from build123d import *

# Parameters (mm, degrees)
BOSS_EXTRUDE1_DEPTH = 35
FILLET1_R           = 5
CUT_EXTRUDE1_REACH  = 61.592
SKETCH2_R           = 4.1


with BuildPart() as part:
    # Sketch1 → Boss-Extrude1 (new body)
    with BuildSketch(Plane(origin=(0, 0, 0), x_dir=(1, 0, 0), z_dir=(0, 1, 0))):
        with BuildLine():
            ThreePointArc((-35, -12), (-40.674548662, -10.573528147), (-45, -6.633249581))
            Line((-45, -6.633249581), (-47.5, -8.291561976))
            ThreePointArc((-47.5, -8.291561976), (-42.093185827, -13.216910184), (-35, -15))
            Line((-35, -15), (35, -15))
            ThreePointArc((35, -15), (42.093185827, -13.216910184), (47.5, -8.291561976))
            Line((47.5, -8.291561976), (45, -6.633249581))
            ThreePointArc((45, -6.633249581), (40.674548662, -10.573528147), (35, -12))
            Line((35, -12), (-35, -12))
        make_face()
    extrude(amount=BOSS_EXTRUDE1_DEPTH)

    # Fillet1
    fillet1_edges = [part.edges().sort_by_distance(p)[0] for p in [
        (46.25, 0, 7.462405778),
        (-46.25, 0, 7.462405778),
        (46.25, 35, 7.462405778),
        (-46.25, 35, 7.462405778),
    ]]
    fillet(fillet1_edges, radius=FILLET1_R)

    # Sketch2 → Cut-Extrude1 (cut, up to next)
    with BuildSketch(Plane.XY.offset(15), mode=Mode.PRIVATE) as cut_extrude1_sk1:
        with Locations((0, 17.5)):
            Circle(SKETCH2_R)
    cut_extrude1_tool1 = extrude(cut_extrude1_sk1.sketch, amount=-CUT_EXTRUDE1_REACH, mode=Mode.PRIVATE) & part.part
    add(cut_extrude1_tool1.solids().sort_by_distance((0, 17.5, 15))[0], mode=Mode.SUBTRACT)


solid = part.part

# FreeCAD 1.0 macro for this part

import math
import FreeCAD as App
import Part
import Sketcher

V = App.Vector
Q = App.Units.Quantity


def edges_at(feature, points):
    """Names of the edges that pass closest to the given points."""
    edges = feature.Shape.Edges
    near = lambda p: min(range(len(edges)), key=lambda i: edges[i].distToShape(Part.Vertex(*p))[0])
    return sorted({f"Edge{near(p) + 1}" for p in points})

doc = App.newDocument("Part")
body = doc.addObject("PartDesign::Body", "Body")

sketch1 = doc.addObject("Sketcher::SketchObject", "Sketch")
body.addObject(sketch1)
sketch1.AttachmentSupport = (doc.XZ_Plane, [""])
sketch1.MapMode = "FlatFace"
sketch1.addGeometry([
    Part.ArcOfCircle(Part.Circle(V(-35, 0, 0), V(0, 0, 1), 12), math.radians(90), math.radians(146)),
    Part.LineSegment(V(-45, 6.6, 0), V(-47.5, 8.3, 0)),
    Part.ArcOfCircle(Part.Circle(V(-35, 0, 0), V(0, 0, 1), 15), math.radians(90), math.radians(146)),
    Part.LineSegment(V(-35, 15, 0), V(35, 15, 0)),
    Part.ArcOfCircle(Part.Circle(V(35, 0, 0), V(0, 0, 1), 15), math.radians(34), math.radians(90)),
    Part.LineSegment(V(47.5, 8.3, 0), V(45, 6.6, 0)),
    Part.ArcOfCircle(Part.Circle(V(35, 0, 0), V(0, 0, 1), 12), math.radians(34), math.radians(90)),
    Part.LineSegment(V(35, 12, 0), V(-35, 12, 0)),
], False)
sketch1.addConstraint([
    Sketcher.Constraint("Coincident", 0, 2, 1, 1),
    Sketcher.Constraint("Coincident", 1, 2, 2, 2),
    Sketcher.Constraint("Tangent", 2, 1, 3, 1),
    Sketcher.Constraint("Tangent", 3, 2, 4, 2),
    Sketcher.Constraint("Coincident", 4, 1, 5, 1),
    Sketcher.Constraint("Coincident", 5, 2, 6, 1),
    Sketcher.Constraint("Tangent", 6, 2, 7, 1),
    Sketcher.Constraint("Tangent", 7, 2, 0, 1),
    Sketcher.Constraint("Horizontal", 3),
    Sketcher.Constraint("Horizontal", 7),
    Sketcher.Constraint("Coincident", 2, 3, 0, 3),
    Sketcher.Constraint("Coincident", 6, 3, 4, 3),
    Sketcher.Constraint("Equal", 2, 4),
    Sketcher.Constraint("Symmetric", 0, 3, 4, 3, -1, 1),
    Sketcher.Constraint("Horizontal", 1, 2, 4, 1),
    Sketcher.Constraint("Horizontal", 0, 2, 5, 2),
    Sketcher.Constraint("Radius", 0, Q("12 mm")),
    Sketcher.Constraint("Radius", 2, Q("15 mm")),
    Sketcher.Constraint("DistanceX", 3, 1, 3, 2, Q("70 mm")),
    Sketcher.Constraint("DistanceX", 0, 2, -1, 1, Q("45 mm")),
    Sketcher.Constraint("DistanceX", 1, 2, -1, 1, Q("47.5 mm")),
])
pad1 = doc.addObject("PartDesign::Pad", "Pad")
body.addObject(pad1)
pad1.Profile = sketch1
pad1.Length = 35
pad1.Reversed = True
doc.recompute()

fillet = doc.addObject("PartDesign::Fillet", "Fillet")
body.addObject(fillet)
fillet.Base = (pad1, edges_at(pad1, [
    (46.25, 0, 7.462),
    (-46.25, 0, 7.462),
    (46.25, 35, 7.462),
    (-46.25, 35, 7.462),
]))
fillet.Radius = 5

sketch2 = doc.addObject("Sketcher::SketchObject", "Sketch001")
body.addObject(sketch2)
sketch2.AttachmentSupport = (doc.XY_Plane, [""])
sketch2.MapMode = "FlatFace"
sketch2.AttachmentOffset = App.Placement(V(0, 0, 15), App.Rotation())
sketch2.addGeometry(Part.Circle(V(0, 17.5, 0), V(0, 0, 1), 4.1), False)
sketch2.addConstraint([
    Sketcher.Constraint("PointOnObject", 0, 3, -2),
    Sketcher.Constraint("Diameter", 0, Q("8.2 mm")),
    Sketcher.Constraint("DistanceY", -1, 1, 0, 3, Q("17.5 mm")),
])
pocket1 = doc.addObject("PartDesign::Pocket", "Pocket")
body.addObject(pocket1)
pocket1.Profile = sketch2
pocket1.Type = "UpToFirst"

doc.recompute()
